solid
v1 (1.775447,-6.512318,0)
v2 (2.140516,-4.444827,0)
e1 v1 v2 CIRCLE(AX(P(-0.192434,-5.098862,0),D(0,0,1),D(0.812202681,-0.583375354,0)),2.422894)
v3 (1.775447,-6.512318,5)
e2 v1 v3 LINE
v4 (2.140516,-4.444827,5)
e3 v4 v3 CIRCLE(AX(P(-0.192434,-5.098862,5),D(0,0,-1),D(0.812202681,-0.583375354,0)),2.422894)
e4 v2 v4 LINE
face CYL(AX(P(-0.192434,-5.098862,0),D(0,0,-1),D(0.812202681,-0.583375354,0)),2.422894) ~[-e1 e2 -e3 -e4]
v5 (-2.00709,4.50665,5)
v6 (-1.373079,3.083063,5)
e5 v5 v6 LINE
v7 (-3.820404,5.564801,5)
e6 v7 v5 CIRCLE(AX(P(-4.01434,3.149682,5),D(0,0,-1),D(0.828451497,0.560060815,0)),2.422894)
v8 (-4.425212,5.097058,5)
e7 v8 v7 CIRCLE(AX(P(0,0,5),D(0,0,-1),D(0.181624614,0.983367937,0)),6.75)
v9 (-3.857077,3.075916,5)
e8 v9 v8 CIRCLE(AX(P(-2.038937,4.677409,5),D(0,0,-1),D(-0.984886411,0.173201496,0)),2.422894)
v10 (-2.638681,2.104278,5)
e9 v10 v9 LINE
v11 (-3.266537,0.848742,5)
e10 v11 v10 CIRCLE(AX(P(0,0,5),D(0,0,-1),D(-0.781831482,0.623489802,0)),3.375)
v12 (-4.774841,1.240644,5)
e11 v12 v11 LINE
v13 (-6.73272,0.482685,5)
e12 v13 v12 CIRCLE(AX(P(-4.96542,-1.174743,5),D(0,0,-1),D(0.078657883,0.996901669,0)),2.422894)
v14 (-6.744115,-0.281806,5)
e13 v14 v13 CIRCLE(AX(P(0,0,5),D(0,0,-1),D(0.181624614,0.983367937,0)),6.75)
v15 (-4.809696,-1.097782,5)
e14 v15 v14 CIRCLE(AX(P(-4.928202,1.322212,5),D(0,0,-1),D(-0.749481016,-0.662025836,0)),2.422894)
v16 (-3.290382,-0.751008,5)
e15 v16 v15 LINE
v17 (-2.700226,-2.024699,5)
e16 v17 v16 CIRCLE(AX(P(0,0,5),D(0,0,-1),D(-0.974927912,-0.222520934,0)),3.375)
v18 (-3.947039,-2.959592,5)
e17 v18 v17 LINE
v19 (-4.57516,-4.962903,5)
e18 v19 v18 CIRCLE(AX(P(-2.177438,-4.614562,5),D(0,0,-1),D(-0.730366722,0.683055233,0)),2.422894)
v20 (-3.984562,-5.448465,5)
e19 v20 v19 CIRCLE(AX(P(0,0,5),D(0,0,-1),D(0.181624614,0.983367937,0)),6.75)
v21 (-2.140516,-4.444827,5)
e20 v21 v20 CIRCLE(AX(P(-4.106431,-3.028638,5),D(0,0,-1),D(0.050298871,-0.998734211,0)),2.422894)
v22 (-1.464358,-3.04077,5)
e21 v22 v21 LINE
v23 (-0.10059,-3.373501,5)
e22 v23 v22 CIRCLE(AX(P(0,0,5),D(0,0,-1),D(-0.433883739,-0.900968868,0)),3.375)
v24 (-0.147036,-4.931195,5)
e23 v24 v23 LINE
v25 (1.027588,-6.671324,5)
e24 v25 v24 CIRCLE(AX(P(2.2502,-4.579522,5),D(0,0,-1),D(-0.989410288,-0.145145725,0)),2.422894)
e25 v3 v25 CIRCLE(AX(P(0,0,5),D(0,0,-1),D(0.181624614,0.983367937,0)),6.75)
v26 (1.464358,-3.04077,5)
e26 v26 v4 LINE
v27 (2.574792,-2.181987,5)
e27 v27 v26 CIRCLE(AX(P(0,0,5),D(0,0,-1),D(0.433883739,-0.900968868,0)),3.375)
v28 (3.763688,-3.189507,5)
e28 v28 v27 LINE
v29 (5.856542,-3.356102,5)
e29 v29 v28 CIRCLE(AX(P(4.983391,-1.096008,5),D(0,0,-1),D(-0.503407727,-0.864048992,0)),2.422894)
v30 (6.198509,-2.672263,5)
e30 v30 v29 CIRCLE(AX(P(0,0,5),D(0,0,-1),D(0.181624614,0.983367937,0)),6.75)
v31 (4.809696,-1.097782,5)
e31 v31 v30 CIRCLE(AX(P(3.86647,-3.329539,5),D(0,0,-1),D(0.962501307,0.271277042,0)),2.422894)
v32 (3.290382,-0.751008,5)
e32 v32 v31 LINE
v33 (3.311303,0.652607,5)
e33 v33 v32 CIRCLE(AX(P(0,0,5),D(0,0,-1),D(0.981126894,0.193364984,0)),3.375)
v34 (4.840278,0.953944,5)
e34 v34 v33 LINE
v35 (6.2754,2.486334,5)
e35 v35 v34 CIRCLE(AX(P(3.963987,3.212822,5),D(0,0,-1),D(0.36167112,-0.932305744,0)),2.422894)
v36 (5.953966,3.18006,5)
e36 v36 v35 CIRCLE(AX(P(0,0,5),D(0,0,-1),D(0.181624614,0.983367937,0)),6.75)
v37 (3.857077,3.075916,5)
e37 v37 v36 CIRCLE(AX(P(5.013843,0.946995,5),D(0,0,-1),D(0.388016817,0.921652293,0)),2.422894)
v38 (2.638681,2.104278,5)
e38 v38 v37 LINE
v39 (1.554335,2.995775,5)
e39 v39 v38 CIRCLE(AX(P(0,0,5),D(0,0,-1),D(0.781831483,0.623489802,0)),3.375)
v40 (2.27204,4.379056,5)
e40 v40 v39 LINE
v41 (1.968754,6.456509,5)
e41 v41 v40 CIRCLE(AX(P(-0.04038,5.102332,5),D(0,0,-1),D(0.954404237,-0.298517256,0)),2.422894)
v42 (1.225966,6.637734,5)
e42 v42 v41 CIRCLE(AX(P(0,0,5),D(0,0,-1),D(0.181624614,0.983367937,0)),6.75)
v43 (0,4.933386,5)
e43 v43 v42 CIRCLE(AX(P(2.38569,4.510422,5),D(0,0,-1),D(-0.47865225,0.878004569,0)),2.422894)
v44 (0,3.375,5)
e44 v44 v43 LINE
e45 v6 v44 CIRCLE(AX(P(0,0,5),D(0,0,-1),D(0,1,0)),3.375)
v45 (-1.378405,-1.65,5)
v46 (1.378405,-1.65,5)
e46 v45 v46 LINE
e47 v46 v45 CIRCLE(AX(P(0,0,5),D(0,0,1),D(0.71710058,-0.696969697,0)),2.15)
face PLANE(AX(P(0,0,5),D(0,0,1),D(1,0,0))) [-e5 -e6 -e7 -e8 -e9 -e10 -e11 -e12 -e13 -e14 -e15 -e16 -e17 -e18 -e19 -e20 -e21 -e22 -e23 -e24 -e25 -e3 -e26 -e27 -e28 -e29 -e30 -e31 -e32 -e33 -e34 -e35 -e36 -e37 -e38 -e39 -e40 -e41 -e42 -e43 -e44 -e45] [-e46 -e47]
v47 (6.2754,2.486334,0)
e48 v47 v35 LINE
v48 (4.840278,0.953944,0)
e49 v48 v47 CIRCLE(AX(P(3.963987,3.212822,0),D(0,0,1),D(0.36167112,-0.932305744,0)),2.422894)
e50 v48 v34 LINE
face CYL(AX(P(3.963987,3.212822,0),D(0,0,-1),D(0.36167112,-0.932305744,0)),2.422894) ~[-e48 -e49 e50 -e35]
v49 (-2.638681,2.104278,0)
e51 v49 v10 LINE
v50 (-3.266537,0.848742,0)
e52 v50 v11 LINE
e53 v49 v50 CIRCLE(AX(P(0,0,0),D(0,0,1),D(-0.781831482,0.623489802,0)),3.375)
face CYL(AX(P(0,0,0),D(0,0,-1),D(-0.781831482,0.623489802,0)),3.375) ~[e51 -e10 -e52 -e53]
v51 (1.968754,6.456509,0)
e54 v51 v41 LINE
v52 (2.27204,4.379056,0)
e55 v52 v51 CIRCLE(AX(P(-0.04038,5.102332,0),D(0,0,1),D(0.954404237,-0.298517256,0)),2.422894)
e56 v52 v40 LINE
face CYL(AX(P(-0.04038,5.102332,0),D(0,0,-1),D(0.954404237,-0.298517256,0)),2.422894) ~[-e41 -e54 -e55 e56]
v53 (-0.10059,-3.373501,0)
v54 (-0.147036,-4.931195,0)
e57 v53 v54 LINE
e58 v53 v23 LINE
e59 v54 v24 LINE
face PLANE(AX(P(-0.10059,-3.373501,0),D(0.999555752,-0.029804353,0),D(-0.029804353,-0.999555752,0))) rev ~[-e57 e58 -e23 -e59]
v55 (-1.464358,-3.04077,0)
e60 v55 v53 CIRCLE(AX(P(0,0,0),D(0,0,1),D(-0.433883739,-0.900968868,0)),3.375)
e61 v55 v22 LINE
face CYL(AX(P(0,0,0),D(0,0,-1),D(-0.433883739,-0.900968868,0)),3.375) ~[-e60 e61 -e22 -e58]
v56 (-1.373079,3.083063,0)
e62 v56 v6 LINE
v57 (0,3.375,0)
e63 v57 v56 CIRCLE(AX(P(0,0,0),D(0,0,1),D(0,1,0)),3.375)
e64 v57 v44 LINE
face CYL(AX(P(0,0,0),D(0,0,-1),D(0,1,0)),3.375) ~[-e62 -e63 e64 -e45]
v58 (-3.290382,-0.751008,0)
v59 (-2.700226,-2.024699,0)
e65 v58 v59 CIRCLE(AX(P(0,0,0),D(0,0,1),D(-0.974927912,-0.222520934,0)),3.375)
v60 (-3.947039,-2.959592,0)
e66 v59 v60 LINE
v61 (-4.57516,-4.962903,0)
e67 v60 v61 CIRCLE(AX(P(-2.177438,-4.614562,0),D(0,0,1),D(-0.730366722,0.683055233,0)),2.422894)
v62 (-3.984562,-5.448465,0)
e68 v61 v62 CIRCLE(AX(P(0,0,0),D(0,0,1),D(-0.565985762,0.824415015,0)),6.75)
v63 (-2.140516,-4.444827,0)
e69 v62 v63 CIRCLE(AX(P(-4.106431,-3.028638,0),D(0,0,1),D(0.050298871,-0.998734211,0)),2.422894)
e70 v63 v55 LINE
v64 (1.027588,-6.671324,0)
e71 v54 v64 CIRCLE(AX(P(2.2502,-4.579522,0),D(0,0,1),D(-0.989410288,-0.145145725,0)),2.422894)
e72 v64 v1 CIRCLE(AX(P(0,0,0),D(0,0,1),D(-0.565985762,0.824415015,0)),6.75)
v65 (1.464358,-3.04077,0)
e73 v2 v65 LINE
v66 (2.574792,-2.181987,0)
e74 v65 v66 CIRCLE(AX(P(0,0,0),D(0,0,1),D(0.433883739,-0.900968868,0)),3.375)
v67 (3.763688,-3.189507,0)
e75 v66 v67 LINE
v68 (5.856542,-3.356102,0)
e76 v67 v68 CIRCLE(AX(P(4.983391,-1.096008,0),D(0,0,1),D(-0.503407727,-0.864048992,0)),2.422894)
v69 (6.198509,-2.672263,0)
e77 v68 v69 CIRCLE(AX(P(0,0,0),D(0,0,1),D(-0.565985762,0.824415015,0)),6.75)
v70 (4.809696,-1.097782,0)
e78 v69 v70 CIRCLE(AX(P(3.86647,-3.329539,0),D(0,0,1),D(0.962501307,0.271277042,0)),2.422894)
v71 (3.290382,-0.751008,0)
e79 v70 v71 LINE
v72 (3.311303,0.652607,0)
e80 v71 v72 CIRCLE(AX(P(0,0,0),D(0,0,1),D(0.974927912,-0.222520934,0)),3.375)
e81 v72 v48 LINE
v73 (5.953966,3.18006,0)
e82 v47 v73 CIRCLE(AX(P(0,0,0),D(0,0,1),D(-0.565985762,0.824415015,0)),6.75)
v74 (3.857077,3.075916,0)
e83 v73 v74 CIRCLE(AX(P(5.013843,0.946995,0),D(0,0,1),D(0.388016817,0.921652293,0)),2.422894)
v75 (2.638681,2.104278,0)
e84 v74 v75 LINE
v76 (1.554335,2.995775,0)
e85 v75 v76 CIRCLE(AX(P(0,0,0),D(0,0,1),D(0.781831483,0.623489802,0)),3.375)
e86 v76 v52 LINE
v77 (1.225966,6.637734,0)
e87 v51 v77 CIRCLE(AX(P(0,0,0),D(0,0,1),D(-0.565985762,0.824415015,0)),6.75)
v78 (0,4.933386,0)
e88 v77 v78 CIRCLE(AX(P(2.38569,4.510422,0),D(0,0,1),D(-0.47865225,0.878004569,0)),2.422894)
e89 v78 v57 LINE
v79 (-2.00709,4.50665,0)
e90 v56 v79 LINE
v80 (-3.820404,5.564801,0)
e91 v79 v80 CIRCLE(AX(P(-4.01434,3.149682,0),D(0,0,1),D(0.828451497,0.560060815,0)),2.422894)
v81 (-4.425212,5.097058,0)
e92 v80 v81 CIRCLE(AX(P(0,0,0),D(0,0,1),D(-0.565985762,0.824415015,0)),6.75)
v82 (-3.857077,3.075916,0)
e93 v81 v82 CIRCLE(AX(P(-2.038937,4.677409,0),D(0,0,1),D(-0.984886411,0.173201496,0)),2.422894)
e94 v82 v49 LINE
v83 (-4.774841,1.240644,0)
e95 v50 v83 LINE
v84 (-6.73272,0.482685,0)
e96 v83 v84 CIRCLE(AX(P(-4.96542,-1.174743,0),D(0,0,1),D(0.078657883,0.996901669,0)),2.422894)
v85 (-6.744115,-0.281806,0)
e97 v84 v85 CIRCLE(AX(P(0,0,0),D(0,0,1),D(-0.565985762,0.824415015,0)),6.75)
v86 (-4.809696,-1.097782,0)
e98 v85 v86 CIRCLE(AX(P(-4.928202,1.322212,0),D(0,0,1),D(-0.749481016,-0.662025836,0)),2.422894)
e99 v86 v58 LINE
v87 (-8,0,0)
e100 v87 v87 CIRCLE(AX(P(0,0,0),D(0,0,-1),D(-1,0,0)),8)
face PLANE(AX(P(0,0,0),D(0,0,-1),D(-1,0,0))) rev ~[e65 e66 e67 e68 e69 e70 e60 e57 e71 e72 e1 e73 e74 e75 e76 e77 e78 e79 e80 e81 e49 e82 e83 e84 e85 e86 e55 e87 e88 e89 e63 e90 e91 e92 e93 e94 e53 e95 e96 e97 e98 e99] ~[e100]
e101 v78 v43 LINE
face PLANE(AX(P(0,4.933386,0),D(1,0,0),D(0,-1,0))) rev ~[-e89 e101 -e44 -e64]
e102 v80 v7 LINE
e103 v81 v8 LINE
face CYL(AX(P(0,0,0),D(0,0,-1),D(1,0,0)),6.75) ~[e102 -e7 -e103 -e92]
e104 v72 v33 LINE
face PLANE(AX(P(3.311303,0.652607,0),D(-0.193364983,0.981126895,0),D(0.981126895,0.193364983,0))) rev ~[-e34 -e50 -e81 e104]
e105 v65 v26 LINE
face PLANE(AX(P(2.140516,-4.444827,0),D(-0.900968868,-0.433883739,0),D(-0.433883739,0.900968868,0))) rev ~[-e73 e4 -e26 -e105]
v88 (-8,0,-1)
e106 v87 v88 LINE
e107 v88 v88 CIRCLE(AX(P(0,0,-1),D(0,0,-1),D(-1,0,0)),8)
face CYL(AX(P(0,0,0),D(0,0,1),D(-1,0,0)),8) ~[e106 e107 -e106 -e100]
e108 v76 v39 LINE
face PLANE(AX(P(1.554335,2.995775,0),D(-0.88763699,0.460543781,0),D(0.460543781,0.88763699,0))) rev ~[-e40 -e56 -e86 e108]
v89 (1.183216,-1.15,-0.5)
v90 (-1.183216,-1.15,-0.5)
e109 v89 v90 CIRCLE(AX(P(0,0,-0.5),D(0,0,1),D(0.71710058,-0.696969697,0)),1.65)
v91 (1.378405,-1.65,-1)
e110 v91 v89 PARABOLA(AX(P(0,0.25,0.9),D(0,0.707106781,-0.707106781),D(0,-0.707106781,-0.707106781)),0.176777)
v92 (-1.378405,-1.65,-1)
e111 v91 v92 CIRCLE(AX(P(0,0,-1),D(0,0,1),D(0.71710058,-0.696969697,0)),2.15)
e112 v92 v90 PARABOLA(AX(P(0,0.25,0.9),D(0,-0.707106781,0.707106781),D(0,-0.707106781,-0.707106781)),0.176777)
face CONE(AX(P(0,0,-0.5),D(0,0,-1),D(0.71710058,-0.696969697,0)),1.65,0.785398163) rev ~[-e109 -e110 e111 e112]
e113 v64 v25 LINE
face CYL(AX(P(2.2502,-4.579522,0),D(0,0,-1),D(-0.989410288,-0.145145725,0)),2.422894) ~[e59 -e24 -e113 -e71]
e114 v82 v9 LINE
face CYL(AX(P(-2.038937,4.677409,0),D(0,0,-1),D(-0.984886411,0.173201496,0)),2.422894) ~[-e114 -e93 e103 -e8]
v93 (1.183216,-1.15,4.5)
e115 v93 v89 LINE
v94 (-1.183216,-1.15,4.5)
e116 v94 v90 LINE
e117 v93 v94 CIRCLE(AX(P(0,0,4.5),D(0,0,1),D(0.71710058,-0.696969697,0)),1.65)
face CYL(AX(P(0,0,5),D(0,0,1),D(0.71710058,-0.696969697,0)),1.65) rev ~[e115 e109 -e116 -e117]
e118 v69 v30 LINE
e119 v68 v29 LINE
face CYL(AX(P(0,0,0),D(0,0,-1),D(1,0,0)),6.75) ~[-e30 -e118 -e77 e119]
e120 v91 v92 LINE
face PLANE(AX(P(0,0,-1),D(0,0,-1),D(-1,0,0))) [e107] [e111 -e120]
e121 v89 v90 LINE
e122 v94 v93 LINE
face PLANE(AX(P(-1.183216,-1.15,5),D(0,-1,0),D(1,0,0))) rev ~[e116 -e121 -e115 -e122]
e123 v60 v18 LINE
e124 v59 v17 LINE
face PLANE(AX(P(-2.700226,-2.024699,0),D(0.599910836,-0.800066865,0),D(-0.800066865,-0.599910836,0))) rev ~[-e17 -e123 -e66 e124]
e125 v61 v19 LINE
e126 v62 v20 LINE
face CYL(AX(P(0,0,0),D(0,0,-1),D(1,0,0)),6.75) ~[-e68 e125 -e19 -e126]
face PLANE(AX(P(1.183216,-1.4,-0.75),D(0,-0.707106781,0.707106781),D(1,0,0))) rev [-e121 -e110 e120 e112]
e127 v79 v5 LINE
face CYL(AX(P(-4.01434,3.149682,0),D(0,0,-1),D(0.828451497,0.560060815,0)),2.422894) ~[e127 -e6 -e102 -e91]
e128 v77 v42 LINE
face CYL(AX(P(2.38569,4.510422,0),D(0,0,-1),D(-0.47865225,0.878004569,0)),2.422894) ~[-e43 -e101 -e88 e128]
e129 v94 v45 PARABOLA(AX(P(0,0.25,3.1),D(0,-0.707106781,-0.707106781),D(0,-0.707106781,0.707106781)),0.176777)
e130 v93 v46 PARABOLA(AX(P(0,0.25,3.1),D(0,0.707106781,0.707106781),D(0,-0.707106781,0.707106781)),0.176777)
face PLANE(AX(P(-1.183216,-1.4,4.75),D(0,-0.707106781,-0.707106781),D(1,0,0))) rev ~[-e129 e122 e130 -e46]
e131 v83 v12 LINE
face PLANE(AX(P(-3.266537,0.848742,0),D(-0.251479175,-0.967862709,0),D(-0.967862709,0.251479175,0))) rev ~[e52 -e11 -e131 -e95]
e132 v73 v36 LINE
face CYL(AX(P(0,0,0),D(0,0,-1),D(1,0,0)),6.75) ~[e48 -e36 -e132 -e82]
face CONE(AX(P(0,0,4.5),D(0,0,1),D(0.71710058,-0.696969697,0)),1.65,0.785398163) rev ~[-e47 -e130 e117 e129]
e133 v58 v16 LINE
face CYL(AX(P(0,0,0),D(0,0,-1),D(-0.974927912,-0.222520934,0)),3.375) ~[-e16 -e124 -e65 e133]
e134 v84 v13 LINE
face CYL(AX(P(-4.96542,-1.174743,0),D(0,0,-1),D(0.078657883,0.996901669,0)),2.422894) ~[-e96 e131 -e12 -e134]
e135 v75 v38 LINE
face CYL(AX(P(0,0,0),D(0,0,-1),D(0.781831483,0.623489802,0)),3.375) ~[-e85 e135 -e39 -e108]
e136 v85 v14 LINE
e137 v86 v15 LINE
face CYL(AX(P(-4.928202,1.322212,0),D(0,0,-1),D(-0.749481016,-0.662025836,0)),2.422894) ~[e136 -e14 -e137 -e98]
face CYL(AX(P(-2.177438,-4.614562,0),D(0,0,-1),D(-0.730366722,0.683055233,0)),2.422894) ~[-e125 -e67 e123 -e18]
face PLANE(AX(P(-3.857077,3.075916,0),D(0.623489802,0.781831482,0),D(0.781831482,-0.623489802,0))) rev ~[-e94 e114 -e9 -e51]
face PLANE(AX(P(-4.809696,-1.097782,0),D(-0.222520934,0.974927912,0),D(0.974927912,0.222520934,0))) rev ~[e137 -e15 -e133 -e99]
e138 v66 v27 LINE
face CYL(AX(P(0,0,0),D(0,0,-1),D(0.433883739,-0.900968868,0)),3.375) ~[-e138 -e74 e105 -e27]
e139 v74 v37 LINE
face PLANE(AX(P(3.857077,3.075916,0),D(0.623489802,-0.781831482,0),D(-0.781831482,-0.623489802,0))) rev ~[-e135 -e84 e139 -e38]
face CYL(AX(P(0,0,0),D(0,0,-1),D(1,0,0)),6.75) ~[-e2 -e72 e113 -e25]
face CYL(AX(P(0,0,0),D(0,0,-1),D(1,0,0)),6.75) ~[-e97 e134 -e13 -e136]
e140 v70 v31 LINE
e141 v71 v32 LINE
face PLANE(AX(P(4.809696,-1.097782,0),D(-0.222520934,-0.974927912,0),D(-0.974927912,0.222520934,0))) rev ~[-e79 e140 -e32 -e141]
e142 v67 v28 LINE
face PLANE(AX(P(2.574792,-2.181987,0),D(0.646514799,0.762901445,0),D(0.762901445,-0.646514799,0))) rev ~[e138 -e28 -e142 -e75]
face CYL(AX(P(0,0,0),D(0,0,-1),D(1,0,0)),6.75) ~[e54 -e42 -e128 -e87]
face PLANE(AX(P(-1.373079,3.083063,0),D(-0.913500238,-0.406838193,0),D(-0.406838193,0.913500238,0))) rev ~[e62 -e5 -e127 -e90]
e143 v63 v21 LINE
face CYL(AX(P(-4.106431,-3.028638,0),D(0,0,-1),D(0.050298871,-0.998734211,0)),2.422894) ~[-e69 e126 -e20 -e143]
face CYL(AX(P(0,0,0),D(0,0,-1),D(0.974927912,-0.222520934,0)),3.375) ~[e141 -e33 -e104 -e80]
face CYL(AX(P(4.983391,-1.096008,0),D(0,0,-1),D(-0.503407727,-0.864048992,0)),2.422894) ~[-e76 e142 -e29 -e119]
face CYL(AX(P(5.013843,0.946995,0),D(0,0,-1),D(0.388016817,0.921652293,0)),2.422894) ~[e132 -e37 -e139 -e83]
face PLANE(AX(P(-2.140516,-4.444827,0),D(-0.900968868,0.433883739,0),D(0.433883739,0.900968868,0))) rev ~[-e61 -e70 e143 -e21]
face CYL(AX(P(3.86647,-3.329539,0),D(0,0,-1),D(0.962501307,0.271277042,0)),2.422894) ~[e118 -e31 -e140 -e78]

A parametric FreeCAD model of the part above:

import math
import FreeCAD as App
import Part
import Sketcher


def edges_at(feature, points):
    """Names of the edges that pass closest to the given points."""
    edges = feature.Shape.Edges
    near = lambda p: min(range(len(edges)), key=lambda i: edges[i].distToShape(Part.Vertex(*p))[0])
    return sorted({f"Edge{near(p) + 1}" for p in points})

doc = App.newDocument("Part")
params = doc.addObject("Spreadsheet::Sheet", "Params")
for row, (alias, value) in enumerate([
    ("sketch1_diameter", "13.5 mm"),
    ("pad1_length", "5 mm"),
    ("sketch2_radius", "6.75 mm"),
    ("sketch3_diameter", "6.75 mm"),
    ("pad2_length", "5 mm"),
    ("sketch4_diameter", "16 mm"),
    ("pad3_length", "1 mm"),
    ("sketch5_radius", "1.65 mm"),
    ("chamfer_size", "0.5 mm"),
], start=1):
    params.set(f"A{row}", alias)
    params.set(f"B{row}", "=" + value)
    params.setAlias(f"B{row}", alias)

body = doc.addObject("PartDesign::Body", "Body")

sketch1 = body.newObject("Sketcher::SketchObject", "Sketch")
sketch1.AttachmentSupport = (doc.getObject("XY_Plane"), [""])
sketch1.MapMode = "FlatFace"
sketch1.addGeometry(Part.Circle(App.Vector(0, 0, 0), App.Vector(0, 0, 1), 7), False)
sketch1.addConstraint(Sketcher.Constraint("Coincident", 0, 3, -1, 1))
sketch1.addConstraint(Sketcher.Constraint("Diameter", 0, 13.5))
sketch1.setExpression("Constraints[1]", "Params.sketch1_diameter")
pad1 = body.newObject("PartDesign::Pad", "Pad")
pad1.Profile = sketch1
pad1.setExpression("Length", "Params.pad1_length")

sketch2 = body.newObject("Sketcher::SketchObject", "Sketch001")
sketch2.AttachmentSupport = (doc.getObject("XY_Plane"), [""])
sketch2.MapMode = "FlatFace"
sketch2.addGeometry(Part.LineSegment(App.Vector(0, 3.4, 0), App.Vector(0, 4.9, 0)), False)
sketch2.addGeometry(Part.ArcOfCircle(Part.Circle(App.Vector(2.4, 4.5, 0), App.Vector(0, 0, 1), 2.4), math.radians(119), math.radians(170)), False)
sketch2.addGeometry(Part.ArcOfCircle(Part.Circle(App.Vector(0, 0, 0), App.Vector(0, 0, 1), 6.7), math.radians(80), math.radians(124)), False)
sketch2.addGeometry(Part.ArcOfCircle(Part.Circle(App.Vector(-4, 3.1, 0), App.Vector(0, 0, 1), 2.4), math.radians(34), math.radians(85)), False)
sketch2.addGeometry(Part.LineSegment(App.Vector(-2, 4.5, 0), App.Vector(-1.4, 3.1, 0)), False)
sketch2.addGeometry(Part.ArcOfCircle(Part.Circle(App.Vector(0, 0, 0), App.Vector(0, 0, 1), 3.4), math.radians(90), math.radians(114)), False)
sketch2.addConstraint(Sketcher.Constraint("Coincident", 0, 2, 1, 2))
sketch2.addConstraint(Sketcher.Constraint("Coincident", 1, 1, 2, 1))
sketch2.addConstraint(Sketcher.Constraint("Coincident", 2, 2, 3, 2))
sketch2.addConstraint(Sketcher.Constraint("Coincident", 3, 1, 4, 1))
sketch2.addConstraint(Sketcher.Constraint("Coincident", 4, 2, 5, 2))
sketch2.addConstraint(Sketcher.Constraint("Coincident", 5, 1, 0, 1))
sketch2.addConstraint(Sketcher.Constraint("Vertical", 0))
sketch2.addConstraint(Sketcher.Constraint("Coincident", 2, 3, -1, 1))
sketch2.addConstraint(Sketcher.Constraint("Coincident", 5, 3, -1, 1))
sketch2.addConstraint(Sketcher.Constraint("Equal", 1, 3))
sketch2.addConstraint(Sketcher.Constraint("PointOnObject", 0, 2, -2))
sketch2.addConstraint(Sketcher.Constraint("Radius", 2, 6.75))
sketch2.addConstraint(Sketcher.Constraint("Radius", 5, 3.375))
sketch2.addConstraint(Sketcher.Constraint("Radius", 1, 2.422894))
sketch2.addConstraint(Sketcher.Constraint("DistanceY", -1, 1, 2, 2, 5.564801))
sketch2.addConstraint(Sketcher.Constraint("DistanceY", 0, 1, 0, 2, 1.558386))
sketch2.addConstraint(Sketcher.Constraint("DistanceX", -1, 1, 1, 3, 2.38569))
sketch2.addConstraint(Sketcher.Constraint("DistanceX", 3, 3, -1, 1, 4.01434))
sketch2.addConstraint(Sketcher.Constraint("DistanceX", 3, 1, -1, 1, 2.00709))
sketch2.addConstraint(Sketcher.Constraint("DistanceX", 4, 2, -1, 1, 1.373079))
sketch2.setExpression("Constraints[11]", "Params.sketch2_radius")
pocket1 = body.newObject("PartDesign::Pocket", "Pocket")
pocket1.Profile = sketch2
pocket1.Type = "ThroughAll"
pocket1.Reversed = True
doc.recompute()

polarpattern = body.newObject("PartDesign::PolarPattern", "PolarPattern")
polarpattern.Originals = [pocket1]
polarpattern.Axis = (doc.getObject("Z_Axis"), [""])
polarpattern.Angle = 360
polarpattern.Occurrences = 7
body.Tip = polarpattern

sketch3 = body.newObject("Sketcher::SketchObject", "Sketch002")
sketch3.AttachmentSupport = (doc.getObject("XY_Plane"), [""])
sketch3.MapMode = "FlatFace"
sketch3.addGeometry(Part.Circle(App.Vector(0, 0, 0), App.Vector(0, 0, 1), 3.4), False)
sketch3.addConstraint(Sketcher.Constraint("Coincident", 0, 3, -1, 1))
sketch3.addConstraint(Sketcher.Constraint("Diameter", 0, 6.75))
sketch3.setExpression("Constraints[1]", "Params.sketch3_diameter")
pad2 = body.newObject("PartDesign::Pad", "Pad001")
pad2.Profile = sketch3
pad2.setExpression("Length", "Params.pad2_length")

sketch4 = body.newObject("Sketcher::SketchObject", "Sketch003")
sketch4.AttachmentSupport = (doc.getObject("XY_Plane"), [""])
sketch4.MapMode = "FlatFace"
sketch4.addGeometry(Part.Circle(App.Vector(0, 0, 0), App.Vector(0, 0, 1), 8), False)
sketch4.addConstraint(Sketcher.Constraint("Coincident", 0, 3, -1, 1))
sketch4.addConstraint(Sketcher.Constraint("Diameter", 0, 16.0))
sketch4.setExpression("Constraints[1]", "Params.sketch4_diameter")
pad3 = body.newObject("PartDesign::Pad", "Pad002")
pad3.Profile = sketch4
pad3.setExpression("Length", "Params.pad3_length")
pad3.Reversed = True

sketch5 = body.newObject("Sketcher::SketchObject", "Sketch004")
sketch5.AttachmentSupport = (doc.getObject("XY_Plane"), [""])
sketch5.MapMode = "FlatFace"
sketch5.AttachmentOffset = App.Placement(App.Vector(0, 0, 5), App.Rotation())
sketch5.addGeometry(Part.LineSegment(App.Vector(-1.2, -1.1, 0), App.Vector(1.2, -1.1, 0)), False)
sketch5.addGeometry(Part.ArcOfCircle(Part.Circle(App.Vector(0, 0, 0), App.Vector(0, 0, 1), 1.6), math.radians(-44), math.radians(224)), False)
sketch5.addConstraint(Sketcher.Constraint("Coincident", 0, 1, 1, 2))
sketch5.addConstraint(Sketcher.Constraint("Coincident", 1, 1, 0, 2))
sketch5.addConstraint(Sketcher.Constraint("Horizontal", 0))
sketch5.addConstraint(Sketcher.Constraint("Coincident", 1, 3, -1, 1))
sketch5.addConstraint(Sketcher.Constraint("Radius", 1, 1.65))
sketch5.addConstraint(Sketcher.Constraint("DistanceY", 0, 1, -1, 1, 1.15))
sketch5.setExpression("Constraints[4]", "Params.sketch5_radius")
pocket2 = body.newObject("PartDesign::Pocket", "Pocket001")
pocket2.Profile = sketch5
pocket2.Type = "ThroughAll"
doc.recompute()

chamfer = body.newObject("PartDesign::Chamfer", "Chamfer")
chamfer.Base = (pocket2, edges_at(pocket2, [
    (0, 1.65, -1),
    (0, -1.15, -1),
    (0, 1.65, 5),
    (0, -1.15, 5),
]))
chamfer.setExpression("Size", "Params.chamfer_size")

doc.recompute()
